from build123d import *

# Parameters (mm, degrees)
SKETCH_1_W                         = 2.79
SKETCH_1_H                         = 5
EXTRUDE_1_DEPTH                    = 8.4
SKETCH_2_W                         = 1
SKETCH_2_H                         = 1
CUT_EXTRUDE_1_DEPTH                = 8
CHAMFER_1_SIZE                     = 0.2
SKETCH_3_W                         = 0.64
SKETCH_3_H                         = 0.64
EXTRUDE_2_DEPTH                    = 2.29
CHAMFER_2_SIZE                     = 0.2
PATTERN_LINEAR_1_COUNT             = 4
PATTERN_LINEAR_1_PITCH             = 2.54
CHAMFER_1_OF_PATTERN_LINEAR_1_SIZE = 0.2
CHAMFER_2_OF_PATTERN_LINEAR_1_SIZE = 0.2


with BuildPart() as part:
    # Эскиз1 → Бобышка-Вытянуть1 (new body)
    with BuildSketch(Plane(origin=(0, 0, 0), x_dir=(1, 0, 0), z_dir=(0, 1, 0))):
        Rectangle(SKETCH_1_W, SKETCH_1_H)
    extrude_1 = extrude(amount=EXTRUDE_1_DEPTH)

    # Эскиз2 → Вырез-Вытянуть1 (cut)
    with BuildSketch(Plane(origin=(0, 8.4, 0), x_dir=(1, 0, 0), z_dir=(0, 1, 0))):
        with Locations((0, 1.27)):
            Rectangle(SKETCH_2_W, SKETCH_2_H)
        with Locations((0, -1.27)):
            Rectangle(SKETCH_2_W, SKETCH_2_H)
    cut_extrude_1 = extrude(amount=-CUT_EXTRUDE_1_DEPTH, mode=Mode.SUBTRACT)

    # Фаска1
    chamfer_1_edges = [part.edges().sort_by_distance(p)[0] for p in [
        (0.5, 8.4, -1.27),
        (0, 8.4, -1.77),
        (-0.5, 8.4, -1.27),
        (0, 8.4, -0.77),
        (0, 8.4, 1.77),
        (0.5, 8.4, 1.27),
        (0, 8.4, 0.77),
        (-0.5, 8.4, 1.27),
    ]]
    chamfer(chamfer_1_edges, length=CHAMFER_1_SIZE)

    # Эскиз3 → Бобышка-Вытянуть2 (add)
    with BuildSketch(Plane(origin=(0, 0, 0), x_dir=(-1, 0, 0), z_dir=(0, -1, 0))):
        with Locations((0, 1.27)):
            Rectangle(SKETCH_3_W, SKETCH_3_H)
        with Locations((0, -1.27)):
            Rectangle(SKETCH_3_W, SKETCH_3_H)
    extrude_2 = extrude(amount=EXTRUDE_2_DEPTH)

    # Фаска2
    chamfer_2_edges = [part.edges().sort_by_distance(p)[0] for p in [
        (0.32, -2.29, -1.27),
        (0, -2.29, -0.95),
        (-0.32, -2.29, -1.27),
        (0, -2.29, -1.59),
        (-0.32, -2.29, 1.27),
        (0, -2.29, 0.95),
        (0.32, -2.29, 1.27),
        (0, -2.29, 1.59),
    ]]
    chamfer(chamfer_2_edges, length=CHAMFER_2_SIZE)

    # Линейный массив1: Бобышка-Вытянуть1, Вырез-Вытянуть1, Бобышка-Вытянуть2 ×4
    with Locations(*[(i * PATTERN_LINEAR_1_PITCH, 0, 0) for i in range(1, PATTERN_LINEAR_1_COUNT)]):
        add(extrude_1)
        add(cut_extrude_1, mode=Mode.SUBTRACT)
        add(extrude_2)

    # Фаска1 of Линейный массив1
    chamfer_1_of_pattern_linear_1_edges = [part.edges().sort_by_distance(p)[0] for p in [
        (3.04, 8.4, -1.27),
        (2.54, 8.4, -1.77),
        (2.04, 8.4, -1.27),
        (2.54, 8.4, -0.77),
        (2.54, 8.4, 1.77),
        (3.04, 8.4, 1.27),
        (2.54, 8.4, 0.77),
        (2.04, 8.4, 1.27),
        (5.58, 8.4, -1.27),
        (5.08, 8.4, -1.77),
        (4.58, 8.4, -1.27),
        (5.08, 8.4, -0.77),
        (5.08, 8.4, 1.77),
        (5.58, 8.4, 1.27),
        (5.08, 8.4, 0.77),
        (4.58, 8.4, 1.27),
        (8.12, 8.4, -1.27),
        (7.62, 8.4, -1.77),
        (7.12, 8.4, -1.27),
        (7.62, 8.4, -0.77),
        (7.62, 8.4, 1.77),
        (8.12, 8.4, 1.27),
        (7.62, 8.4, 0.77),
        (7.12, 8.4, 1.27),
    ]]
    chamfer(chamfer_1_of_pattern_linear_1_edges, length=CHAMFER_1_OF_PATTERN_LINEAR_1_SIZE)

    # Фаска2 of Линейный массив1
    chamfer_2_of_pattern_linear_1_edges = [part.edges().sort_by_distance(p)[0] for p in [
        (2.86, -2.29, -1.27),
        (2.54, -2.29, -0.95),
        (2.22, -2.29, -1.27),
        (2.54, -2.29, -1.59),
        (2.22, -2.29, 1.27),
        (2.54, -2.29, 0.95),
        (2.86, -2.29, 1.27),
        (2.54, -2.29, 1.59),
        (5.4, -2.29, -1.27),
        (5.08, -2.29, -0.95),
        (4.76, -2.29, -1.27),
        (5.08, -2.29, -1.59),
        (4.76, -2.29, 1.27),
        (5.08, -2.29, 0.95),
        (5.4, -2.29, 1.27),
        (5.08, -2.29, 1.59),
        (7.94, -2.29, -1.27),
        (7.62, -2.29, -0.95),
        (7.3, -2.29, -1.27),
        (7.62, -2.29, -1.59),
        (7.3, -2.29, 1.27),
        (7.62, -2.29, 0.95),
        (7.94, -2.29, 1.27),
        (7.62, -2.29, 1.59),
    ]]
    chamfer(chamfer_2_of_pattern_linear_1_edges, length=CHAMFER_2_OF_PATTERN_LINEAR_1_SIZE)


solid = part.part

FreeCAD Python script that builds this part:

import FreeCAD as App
import Part
import Sketcher
Q = App.Units.Quantity


def edges_at(feature, points):
    """Names of the edges that pass closest to the given points."""
    edges = feature.Shape.Edges
    near = lambda p: min(range(len(edges)), key=lambda i: edges[i].distToShape(Part.Vertex(*p))[0])
    return sorted({f"Edge{near(p) + 1}" for p in points})


def add_polygon(sketch, points):
    """Adds a closed chain of lines whose ends are joined by coincident constraints."""
    first, n = sketch.GeometryCount, len(points)
    for a, b in zip(points, points[1:] + points[:1]):
        sketch.addGeometry(Part.LineSegment(App.Vector(*a, 0), App.Vector(*b, 0)), False)
    for i in range(n):
        sketch.addConstraint(Sketcher.Constraint("Coincident", first + i, 2, first + (i + 1) % n, 1))

doc = App.newDocument("Part")
body = doc.addObject("PartDesign::Body", "Body")

# Sketch on XZ plane
sketch1 = body.newObject("Sketcher::SketchObject", "Sketch")
sketch1.AttachmentSupport = (doc.getObject("XZ_Plane"), [""])
sketch1.MapMode = "FlatFace"
add_polygon(sketch1, [(-1.395, -2.5), (-1.395, 2.5), (1.395, 2.5), (1.395, -2.5)])  # lines 0-3
sketch1.addConstraint(Sketcher.Constraint("Vertical", 0))
sketch1.addConstraint(Sketcher.Constraint("Horizontal", 1))
sketch1.addConstraint(Sketcher.Constraint("Vertical", 2))
sketch1.addConstraint(Sketcher.Constraint("Horizontal", 3))
sketch1.addConstraint(Sketcher.Constraint("Symmetric", 0, 2, 2, 2, -1, 1))
sketch1.addConstraint(Sketcher.Constraint("DistanceY", 0, 1, 0, 2, Q("5 mm")))
sketch1.addConstraint(Sketcher.Constraint("DistanceX", 1, 1, 1, 2, Q("2.79 mm")))
pad1 = body.newObject("PartDesign::Pad", "Pad")
pad1.Profile = sketch1
pad1.Length = 8.4
pad1.Reversed = True

# Sketch on XZ plane
sketch2 = body.newObject("Sketcher::SketchObject", "Sketch001")
sketch2.AttachmentSupport = (doc.getObject("XZ_Plane"), [""])
sketch2.MapMode = "FlatFace"
sketch2.AttachmentOffset = App.Placement(App.Vector(0, 0, -8.4), App.Rotation())
add_polygon(sketch2, [(-0.5, -1.77), (-0.5, -0.77), (0.5, -0.77), (0.5, -1.77)])  # lines 0-3
add_polygon(sketch2, [(-0.5, 0.77), (-0.5, 1.77), (0.5, 1.77), (0.5, 0.77)])  # lines 4-7
sketch2.addConstraint(Sketcher.Constraint("Vertical", 0))
sketch2.addConstraint(Sketcher.Constraint("Horizontal", 1))
sketch2.addConstraint(Sketcher.Constraint("Vertical", 2))
sketch2.addConstraint(Sketcher.Constraint("Horizontal", 3))
sketch2.addConstraint(Sketcher.Constraint("Vertical", 4))
sketch2.addConstraint(Sketcher.Constraint("Horizontal", 5))
sketch2.addConstraint(Sketcher.Constraint("Vertical", 6))
sketch2.addConstraint(Sketcher.Constraint("Horizontal", 7))
sketch2.addConstraint(Sketcher.Constraint("Symmetric", 2, 2, 4, 2, -1, 1))
sketch2.addConstraint(Sketcher.Constraint("Symmetric", 0, 2, 6, 2, -1, 1))
sketch2.addConstraint(Sketcher.Constraint("Vertical", 3, 2, 4, 2))
sketch2.addConstraint(Sketcher.Constraint("Equal", 7, 0))
sketch2.addConstraint(Sketcher.Constraint("DistanceX", 1, 1, 1, 2, Q("1 mm")))
sketch2.addConstraint(Sketcher.Constraint("DistanceY", 0, 2, -1, 1, Q("0.77 mm")))
pocket1 = body.newObject("PartDesign::Pocket", "Pocket")
pocket1.Profile = sketch2
pocket1.Length = 8
pocket1.Reversed = True
doc.recompute()

chamfer = body.newObject("PartDesign::Chamfer", "Chamfer")
chamfer.Base = (pocket1, edges_at(pocket1, [
    (0.5, 8.4, -1.27),
    (0, 8.4, -1.77),
    (-0.5, 8.4, -1.27),
    (0, 8.4, -0.77),
    (0, 8.4, 1.77),
    (0.5, 8.4, 1.27),
    (0, 8.4, 0.77),
    (-0.5, 8.4, 1.27),
]))
chamfer.Size = 0.2

# Sketch on XZ plane
sketch3 = body.newObject("Sketcher::SketchObject", "Sketch002")
sketch3.AttachmentSupport = (doc.getObject("XZ_Plane"), [""])
sketch3.MapMode = "FlatFace"
add_polygon(sketch3, [(0.32, -1.59), (0.32, -0.95), (-0.32, -0.95), (-0.32, -1.59)])  # lines 0-3
add_polygon(sketch3, [(0.32, 0.95), (0.32, 1.59), (-0.32, 1.59), (-0.32, 0.95)])  # lines 4-7
sketch3.addConstraint(Sketcher.Constraint("Vertical", 0))
sketch3.addConstraint(Sketcher.Constraint("Horizontal", 1))
sketch3.addConstraint(Sketcher.Constraint("Vertical", 2))
sketch3.addConstraint(Sketcher.Constraint("Horizontal", 3))
sketch3.addConstraint(Sketcher.Constraint("Vertical", 4))
sketch3.addConstraint(Sketcher.Constraint("Horizontal", 5))
sketch3.addConstraint(Sketcher.Constraint("Vertical", 6))
sketch3.addConstraint(Sketcher.Constraint("Horizontal", 7))
sketch3.addConstraint(Sketcher.Constraint("Symmetric", 2, 2, 4, 2, -1, 1))
sketch3.addConstraint(Sketcher.Constraint("Symmetric", 0, 2, 6, 2, -1, 1))
sketch3.addConstraint(Sketcher.Constraint("Vertical", 3, 2, 4, 2))
sketch3.addConstraint(Sketcher.Constraint("Equal", 7, 0))
sketch3.addConstraint(Sketcher.Constraint("DistanceX", 1, 2, 1, 1, Q("0.64 mm")))
sketch3.addConstraint(Sketcher.Constraint("DistanceY", 1, 2, 6, 2, Q("1.9 mm")))
pad2 = body.newObject("PartDesign::Pad", "Pad001")
pad2.Profile = sketch3
pad2.Length = 2.29
doc.recompute()

chamfer2 = body.newObject("PartDesign::Chamfer", "Chamfer001")
chamfer2.Base = (pad2, edges_at(pad2, [
    (0.32, -2.29, -1.27),
    (0, -2.29, -0.95),
    (-0.32, -2.29, -1.27),
    (0, -2.29, -1.59),
    (-0.32, -2.29, 1.27),
    (0, -2.29, 0.95),
    (0.32, -2.29, 1.27),
    (0, -2.29, 1.59),
]))
chamfer2.Size = 0.2
doc.recompute()

linearpattern = body.newObject("PartDesign::LinearPattern", "LinearPattern")
linearpattern.Originals = [pad1, pocket1, pad2]
linearpattern.Direction = (doc.getObject("X_Axis"), [""])
linearpattern.Mode = "offset"
linearpattern.Offset = 2.54
linearpattern.Occurrences = 4
body.Tip = linearpattern
doc.recompute()

chamfer3 = body.newObject("PartDesign::Chamfer", "Chamfer002")
chamfer3.Base = (linearpattern, edges_at(linearpattern, [
    (3.04, 8.4, -1.27),
    (2.54, 8.4, -1.77),
    (2.04, 8.4, -1.27),
    (2.54, 8.4, -0.77),
    (2.54, 8.4, 1.77),
    (3.04, 8.4, 1.27),
    (2.54, 8.4, 0.77),
    (2.04, 8.4, 1.27),
    (5.58, 8.4, -1.27),
    (5.08, 8.4, -1.77),
    (4.58, 8.4, -1.27),
    (5.08, 8.4, -0.77),
    (5.08, 8.4, 1.77),
    (5.58, 8.4, 1.27),
    (5.08, 8.4, 0.77),
    (4.58, 8.4, 1.27),
    (8.12, 8.4, -1.27),
    (7.62, 8.4, -1.77),
    (7.12, 8.4, -1.27),
    (7.62, 8.4, -0.77),
    (7.62, 8.4, 1.77),
    (8.12, 8.4, 1.27),
    (7.62, 8.4, 0.77),
    (7.12, 8.4, 1.27),
]))
chamfer3.Size = 0.2
doc.recompute()

chamfer4 = body.newObject("PartDesign::Chamfer", "Chamfer003")
chamfer4.Base = (chamfer3, edges_at(chamfer3, [
    (2.86, -2.29, -1.27),
    (2.54, -2.29, -0.95),
    (2.22, -2.29, -1.27),
    (2.54, -2.29, -1.59),
    (2.22, -2.29, 1.27),
    (2.54, -2.29, 0.95),
    (2.86, -2.29, 1.27),
    (2.54, -2.29, 1.59),
    (5.4, -2.29, -1.27),
    (5.08, -2.29, -0.95),
    (4.76, -2.29, -1.27),
    (5.08, -2.29, -1.59),
    (4.76, -2.29, 1.27),
    (5.08, -2.29, 0.95),
    (5.4, -2.29, 1.27),
    (5.08, -2.29, 1.59),
    (7.94, -2.29, -1.27),
    (7.62, -2.29, -0.95),
    (7.3, -2.29, -1.27),
    (7.62, -2.29, -1.59),
    (7.3, -2.29, 1.27),
    (7.62, -2.29, 0.95),
    (7.94, -2.29, 1.27),
    (7.62, -2.29, 1.59),
]))
chamfer4.Size = 0.2

doc.recompute()
